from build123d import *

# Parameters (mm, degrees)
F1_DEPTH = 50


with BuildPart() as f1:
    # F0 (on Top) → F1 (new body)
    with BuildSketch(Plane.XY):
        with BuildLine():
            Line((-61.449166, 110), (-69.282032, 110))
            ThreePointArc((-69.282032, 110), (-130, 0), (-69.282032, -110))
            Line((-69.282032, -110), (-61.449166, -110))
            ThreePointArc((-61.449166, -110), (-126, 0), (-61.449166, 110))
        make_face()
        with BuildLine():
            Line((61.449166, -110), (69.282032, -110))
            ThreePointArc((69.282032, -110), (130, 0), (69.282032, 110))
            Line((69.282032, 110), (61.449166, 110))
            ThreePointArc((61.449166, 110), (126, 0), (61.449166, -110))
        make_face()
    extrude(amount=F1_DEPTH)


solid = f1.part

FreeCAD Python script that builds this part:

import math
import FreeCAD as App
import Part
import Sketcher
Q = App.Units.Quantity

doc = App.newDocument("Part")
body = doc.addObject("PartDesign::Body", "Body")
body.AllowCompound = True

# Sketch on XY plane
sketch1 = body.newObject("Sketcher::SketchObject", "Sketch")
sketch1.AttachmentSupport = (doc.getObject("XY_Plane"), [""])
sketch1.MapMode = "FlatFace"
sketch1.addGeometry([
    Part.LineSegment(App.Vector(-61.449166, 110, 0), App.Vector(-69.282032, 110, 0)),  # 0
    Part.ArcOfCircle(Part.Circle(App.Vector(0, 0, 0), App.Vector(0, 0, 1), 130), math.radians(122.204227), math.radians(237.795773)),  # 1
    Part.LineSegment(App.Vector(-69.282032, -110, 0), App.Vector(-61.449166, -110, 0)),  # 2
    Part.ArcOfCircle(Part.Circle(App.Vector(0, 0, 0), App.Vector(0, 0, 1), 126), math.radians(119.188982), math.radians(240.811018)),  # 3
    Part.LineSegment(App.Vector(61.449166, -110, 0), App.Vector(69.282032, -110, 0)),  # 4
    Part.ArcOfCircle(Part.Circle(App.Vector(0, 0, 0), App.Vector(0, 0, 1), 130), math.radians(-57.795773), math.radians(57.795773)),  # 5
    Part.LineSegment(App.Vector(69.282032, 110, 0), App.Vector(61.449166, 110, 0)),  # 6
    Part.ArcOfCircle(Part.Circle(App.Vector(0, 0, 0), App.Vector(0, 0, 1), 126), math.radians(-60.811018), math.radians(60.811018)),  # 7
], False)
sketch1.addConstraint([
    Sketcher.Constraint("Coincident", 0, 2, 1, 1),
    Sketcher.Constraint("Coincident", 1, 2, 2, 1),
    Sketcher.Constraint("Coincident", 2, 2, 3, 2),
    Sketcher.Constraint("Coincident", 3, 1, 0, 1),
    Sketcher.Constraint("Coincident", 4, 2, 5, 1),
    Sketcher.Constraint("Coincident", 5, 2, 6, 1),
    Sketcher.Constraint("Coincident", 6, 2, 7, 2),
    Sketcher.Constraint("Coincident", 7, 1, 4, 1),
    Sketcher.Constraint("Horizontal", 0),
    Sketcher.Constraint("Horizontal", 2),
    Sketcher.Constraint("Horizontal", 4),
    Sketcher.Constraint("Horizontal", 6),
    Sketcher.Constraint("Coincident", 1, 3, -1, 1),
    Sketcher.Constraint("Coincident", 3, 3, -1, 1),
    Sketcher.Constraint("Coincident", 5, 3, -1, 1),
    Sketcher.Constraint("Coincident", 7, 3, -1, 1),
    Sketcher.Constraint("Equal", 1, 5),
    Sketcher.Constraint("Equal", 3, 7),
    Sketcher.Constraint("Horizontal", 2, 2, 4, 2),
    Sketcher.Constraint("Horizontal", 3, 1, 5, 2),
    Sketcher.Constraint("Vertical", 0, 2, 1, 2),
    Sketcher.Constraint("Radius", 1, Q("130 mm")),
    Sketcher.Constraint("Radius", 3, Q("126 mm")),
    Sketcher.Constraint("DistanceY", -1, 1, 0, 2, Q("110 mm")),
])
pad1 = body.newObject("PartDesign::Pad", "Pad")
pad1.Profile = sketch1
pad1.Length = 50

doc.recompute()
